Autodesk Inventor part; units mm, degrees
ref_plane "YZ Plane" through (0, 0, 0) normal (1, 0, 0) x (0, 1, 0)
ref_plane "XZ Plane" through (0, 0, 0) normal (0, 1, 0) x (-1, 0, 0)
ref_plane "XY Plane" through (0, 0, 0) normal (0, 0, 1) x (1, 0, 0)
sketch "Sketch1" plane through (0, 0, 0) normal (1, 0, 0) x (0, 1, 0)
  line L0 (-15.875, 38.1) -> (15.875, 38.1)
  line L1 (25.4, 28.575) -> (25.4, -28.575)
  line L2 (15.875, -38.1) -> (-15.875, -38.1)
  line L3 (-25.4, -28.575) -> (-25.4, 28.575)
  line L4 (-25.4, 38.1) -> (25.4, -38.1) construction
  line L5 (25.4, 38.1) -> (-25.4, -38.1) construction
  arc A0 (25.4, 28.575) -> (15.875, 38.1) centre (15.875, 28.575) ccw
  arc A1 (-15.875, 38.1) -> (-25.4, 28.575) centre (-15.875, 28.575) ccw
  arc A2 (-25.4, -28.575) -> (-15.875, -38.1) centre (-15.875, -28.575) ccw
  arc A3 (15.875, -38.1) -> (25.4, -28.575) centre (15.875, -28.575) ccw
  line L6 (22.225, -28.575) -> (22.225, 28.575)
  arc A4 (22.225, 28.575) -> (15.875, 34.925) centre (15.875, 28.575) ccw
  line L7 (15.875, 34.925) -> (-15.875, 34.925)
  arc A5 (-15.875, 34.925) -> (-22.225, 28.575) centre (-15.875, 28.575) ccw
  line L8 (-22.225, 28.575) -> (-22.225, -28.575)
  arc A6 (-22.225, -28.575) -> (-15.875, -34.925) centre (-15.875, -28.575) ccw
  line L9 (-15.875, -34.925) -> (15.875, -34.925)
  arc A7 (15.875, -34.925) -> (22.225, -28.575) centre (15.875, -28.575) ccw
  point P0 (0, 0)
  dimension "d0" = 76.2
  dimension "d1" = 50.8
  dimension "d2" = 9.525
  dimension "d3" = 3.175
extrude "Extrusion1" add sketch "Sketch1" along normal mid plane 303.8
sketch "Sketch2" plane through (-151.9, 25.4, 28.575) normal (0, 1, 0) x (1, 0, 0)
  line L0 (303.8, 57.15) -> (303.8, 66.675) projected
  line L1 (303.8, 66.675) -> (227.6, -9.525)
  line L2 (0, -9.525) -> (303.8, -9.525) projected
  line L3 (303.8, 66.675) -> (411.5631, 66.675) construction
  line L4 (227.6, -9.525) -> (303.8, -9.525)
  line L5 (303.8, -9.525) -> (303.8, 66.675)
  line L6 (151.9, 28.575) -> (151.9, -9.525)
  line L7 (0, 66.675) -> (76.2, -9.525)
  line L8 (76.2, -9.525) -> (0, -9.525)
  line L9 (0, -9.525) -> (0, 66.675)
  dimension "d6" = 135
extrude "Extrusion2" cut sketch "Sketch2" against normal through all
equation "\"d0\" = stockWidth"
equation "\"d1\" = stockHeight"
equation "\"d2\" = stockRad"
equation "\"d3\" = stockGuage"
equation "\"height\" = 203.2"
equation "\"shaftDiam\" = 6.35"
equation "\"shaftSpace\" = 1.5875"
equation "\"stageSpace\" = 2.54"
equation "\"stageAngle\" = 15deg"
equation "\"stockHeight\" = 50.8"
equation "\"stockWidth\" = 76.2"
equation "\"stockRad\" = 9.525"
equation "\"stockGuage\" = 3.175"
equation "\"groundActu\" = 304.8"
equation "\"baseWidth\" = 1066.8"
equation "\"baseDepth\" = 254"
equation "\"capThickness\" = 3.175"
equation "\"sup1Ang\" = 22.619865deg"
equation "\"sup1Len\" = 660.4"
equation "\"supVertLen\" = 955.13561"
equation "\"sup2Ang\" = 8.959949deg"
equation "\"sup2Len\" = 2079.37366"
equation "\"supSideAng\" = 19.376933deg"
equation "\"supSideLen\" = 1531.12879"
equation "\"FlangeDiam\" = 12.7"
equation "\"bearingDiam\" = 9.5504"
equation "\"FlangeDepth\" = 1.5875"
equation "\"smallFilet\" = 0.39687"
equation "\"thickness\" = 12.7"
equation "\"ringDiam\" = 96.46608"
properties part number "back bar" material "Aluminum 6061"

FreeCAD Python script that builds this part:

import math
import FreeCAD as App
import Part
import Sketcher

V = App.Vector
Q = App.Units.Quantity

doc = App.newDocument("Part")
body = doc.addObject("PartDesign::Body", "Body")

# Sketch on YZ plane
sketch1 = doc.addObject("Sketcher::SketchObject", "Sketch")
body.addObject(sketch1)
sketch1.AttachmentSupport = (doc.YZ_Plane, [""])
sketch1.MapMode = "FlatFace"
sketch1.addGeometry([
    Part.LineSegment(V(16, 38, 0), V(-16, 38, 0)),  # 0
    Part.ArcOfCircle(Part.Circle(V(-16, 29, 0), V(0, 0, 1), 10), math.radians(90), math.radians(180)),  # 1
    Part.LineSegment(V(-25, 29, 0), V(-25, -29, 0)),  # 2
    Part.ArcOfCircle(Part.Circle(V(-16, -29, 0), V(0, 0, 1), 10), math.radians(180), math.radians(270)),  # 3
    Part.LineSegment(V(-16, -38, 0), V(16, -38, 0)),  # 4
    Part.ArcOfCircle(Part.Circle(V(16, -29, 0), V(0, 0, 1), 10), math.radians(-90), math.radians(0)),  # 5
    Part.LineSegment(V(25, -29, 0), V(25, 29, 0)),  # 6
    Part.ArcOfCircle(Part.Circle(V(16, 29, 0), V(0, 0, 1), 10), math.radians(0), math.radians(90)),  # 7
    Part.LineSegment(V(22, 29, 0), V(22, -29, 0)),  # 8
    Part.ArcOfCircle(Part.Circle(V(16, -29, 0), V(0, 0, 1), 6), math.radians(-90), math.radians(0)),  # 9
    Part.LineSegment(V(16, -35, 0), V(-16, -35, 0)),  # 10
    Part.ArcOfCircle(Part.Circle(V(-16, -29, 0), V(0, 0, 1), 6), math.radians(180), math.radians(270)),  # 11
    Part.LineSegment(V(-22, -29, 0), V(-22, 29, 0)),  # 12
    Part.ArcOfCircle(Part.Circle(V(-16, 29, 0), V(0, 0, 1), 6), math.radians(90), math.radians(180)),  # 13
    Part.LineSegment(V(-16, 35, 0), V(16, 35, 0)),  # 14
    Part.ArcOfCircle(Part.Circle(V(16, 29, 0), V(0, 0, 1), 6), math.radians(0), math.radians(90)),  # 15
], False)
sketch1.addConstraint([
    Sketcher.Constraint("Tangent", 0, 2, 1, 1),
    Sketcher.Constraint("Tangent", 1, 2, 2, 1),
    Sketcher.Constraint("Tangent", 2, 2, 3, 1),
    Sketcher.Constraint("Tangent", 3, 2, 4, 1),
    Sketcher.Constraint("Tangent", 4, 2, 5, 1),
    Sketcher.Constraint("Tangent", 5, 2, 6, 1),
    Sketcher.Constraint("Tangent", 6, 2, 7, 1),
    Sketcher.Constraint("Tangent", 7, 2, 0, 1),
    Sketcher.Constraint("Tangent", 8, 2, 9, 2),
    Sketcher.Constraint("Tangent", 9, 1, 10, 1),
    Sketcher.Constraint("Tangent", 10, 2, 11, 2),
    Sketcher.Constraint("Tangent", 11, 1, 12, 1),
    Sketcher.Constraint("Tangent", 12, 2, 13, 2),
    Sketcher.Constraint("Tangent", 13, 1, 14, 1),
    Sketcher.Constraint("Tangent", 14, 2, 15, 2),
    Sketcher.Constraint("Tangent", 15, 1, 8, 1),
    Sketcher.Constraint("Horizontal", 0),
    Sketcher.Constraint("Vertical", 2),
    Sketcher.Constraint("Horizontal", 4),
    Sketcher.Constraint("Vertical", 6),
    Sketcher.Constraint("Vertical", 8),
    Sketcher.Constraint("Horizontal", 10),
    Sketcher.Constraint("Vertical", 12),
    Sketcher.Constraint("Horizontal", 14),
    Sketcher.Constraint("Coincident", 9, 3, 5, 3),
    Sketcher.Constraint("Coincident", 11, 3, 3, 3),
    Sketcher.Constraint("Coincident", 13, 3, 1, 3),
    Sketcher.Constraint("Equal", 1, 3),
    Sketcher.Constraint("Equal", 3, 5),
    Sketcher.Constraint("Equal", 5, 7),
    Sketcher.Constraint("Equal", 13, 15),
    Sketcher.Constraint("Symmetric", 1, 3, 5, 3, -1, 1),
    Sketcher.Constraint("Radius", 1, Q("0.375 in")),
    Sketcher.Constraint("Radius", 9, Q("0.25 in")),
    Sketcher.Constraint("DistanceX", 1, 2, -1, 1, Q("1 in")),
    Sketcher.Constraint("DistanceY", 2, 2, 2, 1, Q("2.25 in")),
])
pad1 = doc.addObject("PartDesign::Pad", "Pad")
body.addObject(pad1)
pad1.Profile = sketch1
pad1.Length = 303.8
pad1.Midplane = True

# Sketch on XZ plane
sketch2 = doc.addObject("Sketcher::SketchObject", "Sketch001")
body.addObject(sketch2)
sketch2.AttachmentSupport = (doc.XZ_Plane, [""])
sketch2.MapMode = "FlatFace"
sketch2.AttachmentOffset = App.Placement(V(0, 0, -1 * 25.4), App.Rotation())
sketch2.addGeometry([
    Part.LineSegment(V(152, 38, 0), V(152, -38, 0)),  # 0
    Part.LineSegment(V(152, -38, 0), V(76, 38, 0)),  # 1
    Part.LineSegment(V(76, 38, 0), V(152, 38, 0)),  # 2
    Part.LineSegment(V(-152, 38, 0), V(-76, 38, 0)),  # 3
    Part.LineSegment(V(-76, 38, 0), V(-152, -38, 0)),  # 4
    Part.LineSegment(V(-152, -38, 0), V(-152, 38, 0)),  # 5
], False)
sketch2.addConstraint([
    Sketcher.Constraint("Coincident", 0, 2, 1, 1),
    Sketcher.Constraint("Coincident", 1, 2, 2, 1),
    Sketcher.Constraint("Coincident", 2, 2, 0, 1),
    Sketcher.Constraint("Coincident", 3, 2, 4, 1),
    Sketcher.Constraint("Coincident", 4, 2, 5, 1),
    Sketcher.Constraint("Coincident", 5, 2, 3, 1),
    Sketcher.Constraint("Vertical", 0),
    Sketcher.Constraint("Horizontal", 2),
    Sketcher.Constraint("Horizontal", 3),
    Sketcher.Constraint("Vertical", 5),
    Sketcher.Constraint("Symmetric", 2, 2, 4, 2, -1, 1),
    Sketcher.Constraint("Symmetric", 1, 2, 3, 2, -2),
    Sketcher.Constraint("Perpendicular", 1, 4),
    Sketcher.Constraint("Horizontal", 0, 2, 4, 2),
    Sketcher.Constraint("DistanceX", 2, 1, 2, 2, Q("3 in")),
    Sketcher.Constraint("DistanceX", -1, 1, 0, 2, Q("151.9 mm")),
])
pocket1 = doc.addObject("PartDesign::Pocket", "Pocket")
body.addObject(pocket1)
pocket1.Profile = sketch2
pocket1.Type = "ThroughAll"
pocket1.Reversed = True

doc.recompute()
